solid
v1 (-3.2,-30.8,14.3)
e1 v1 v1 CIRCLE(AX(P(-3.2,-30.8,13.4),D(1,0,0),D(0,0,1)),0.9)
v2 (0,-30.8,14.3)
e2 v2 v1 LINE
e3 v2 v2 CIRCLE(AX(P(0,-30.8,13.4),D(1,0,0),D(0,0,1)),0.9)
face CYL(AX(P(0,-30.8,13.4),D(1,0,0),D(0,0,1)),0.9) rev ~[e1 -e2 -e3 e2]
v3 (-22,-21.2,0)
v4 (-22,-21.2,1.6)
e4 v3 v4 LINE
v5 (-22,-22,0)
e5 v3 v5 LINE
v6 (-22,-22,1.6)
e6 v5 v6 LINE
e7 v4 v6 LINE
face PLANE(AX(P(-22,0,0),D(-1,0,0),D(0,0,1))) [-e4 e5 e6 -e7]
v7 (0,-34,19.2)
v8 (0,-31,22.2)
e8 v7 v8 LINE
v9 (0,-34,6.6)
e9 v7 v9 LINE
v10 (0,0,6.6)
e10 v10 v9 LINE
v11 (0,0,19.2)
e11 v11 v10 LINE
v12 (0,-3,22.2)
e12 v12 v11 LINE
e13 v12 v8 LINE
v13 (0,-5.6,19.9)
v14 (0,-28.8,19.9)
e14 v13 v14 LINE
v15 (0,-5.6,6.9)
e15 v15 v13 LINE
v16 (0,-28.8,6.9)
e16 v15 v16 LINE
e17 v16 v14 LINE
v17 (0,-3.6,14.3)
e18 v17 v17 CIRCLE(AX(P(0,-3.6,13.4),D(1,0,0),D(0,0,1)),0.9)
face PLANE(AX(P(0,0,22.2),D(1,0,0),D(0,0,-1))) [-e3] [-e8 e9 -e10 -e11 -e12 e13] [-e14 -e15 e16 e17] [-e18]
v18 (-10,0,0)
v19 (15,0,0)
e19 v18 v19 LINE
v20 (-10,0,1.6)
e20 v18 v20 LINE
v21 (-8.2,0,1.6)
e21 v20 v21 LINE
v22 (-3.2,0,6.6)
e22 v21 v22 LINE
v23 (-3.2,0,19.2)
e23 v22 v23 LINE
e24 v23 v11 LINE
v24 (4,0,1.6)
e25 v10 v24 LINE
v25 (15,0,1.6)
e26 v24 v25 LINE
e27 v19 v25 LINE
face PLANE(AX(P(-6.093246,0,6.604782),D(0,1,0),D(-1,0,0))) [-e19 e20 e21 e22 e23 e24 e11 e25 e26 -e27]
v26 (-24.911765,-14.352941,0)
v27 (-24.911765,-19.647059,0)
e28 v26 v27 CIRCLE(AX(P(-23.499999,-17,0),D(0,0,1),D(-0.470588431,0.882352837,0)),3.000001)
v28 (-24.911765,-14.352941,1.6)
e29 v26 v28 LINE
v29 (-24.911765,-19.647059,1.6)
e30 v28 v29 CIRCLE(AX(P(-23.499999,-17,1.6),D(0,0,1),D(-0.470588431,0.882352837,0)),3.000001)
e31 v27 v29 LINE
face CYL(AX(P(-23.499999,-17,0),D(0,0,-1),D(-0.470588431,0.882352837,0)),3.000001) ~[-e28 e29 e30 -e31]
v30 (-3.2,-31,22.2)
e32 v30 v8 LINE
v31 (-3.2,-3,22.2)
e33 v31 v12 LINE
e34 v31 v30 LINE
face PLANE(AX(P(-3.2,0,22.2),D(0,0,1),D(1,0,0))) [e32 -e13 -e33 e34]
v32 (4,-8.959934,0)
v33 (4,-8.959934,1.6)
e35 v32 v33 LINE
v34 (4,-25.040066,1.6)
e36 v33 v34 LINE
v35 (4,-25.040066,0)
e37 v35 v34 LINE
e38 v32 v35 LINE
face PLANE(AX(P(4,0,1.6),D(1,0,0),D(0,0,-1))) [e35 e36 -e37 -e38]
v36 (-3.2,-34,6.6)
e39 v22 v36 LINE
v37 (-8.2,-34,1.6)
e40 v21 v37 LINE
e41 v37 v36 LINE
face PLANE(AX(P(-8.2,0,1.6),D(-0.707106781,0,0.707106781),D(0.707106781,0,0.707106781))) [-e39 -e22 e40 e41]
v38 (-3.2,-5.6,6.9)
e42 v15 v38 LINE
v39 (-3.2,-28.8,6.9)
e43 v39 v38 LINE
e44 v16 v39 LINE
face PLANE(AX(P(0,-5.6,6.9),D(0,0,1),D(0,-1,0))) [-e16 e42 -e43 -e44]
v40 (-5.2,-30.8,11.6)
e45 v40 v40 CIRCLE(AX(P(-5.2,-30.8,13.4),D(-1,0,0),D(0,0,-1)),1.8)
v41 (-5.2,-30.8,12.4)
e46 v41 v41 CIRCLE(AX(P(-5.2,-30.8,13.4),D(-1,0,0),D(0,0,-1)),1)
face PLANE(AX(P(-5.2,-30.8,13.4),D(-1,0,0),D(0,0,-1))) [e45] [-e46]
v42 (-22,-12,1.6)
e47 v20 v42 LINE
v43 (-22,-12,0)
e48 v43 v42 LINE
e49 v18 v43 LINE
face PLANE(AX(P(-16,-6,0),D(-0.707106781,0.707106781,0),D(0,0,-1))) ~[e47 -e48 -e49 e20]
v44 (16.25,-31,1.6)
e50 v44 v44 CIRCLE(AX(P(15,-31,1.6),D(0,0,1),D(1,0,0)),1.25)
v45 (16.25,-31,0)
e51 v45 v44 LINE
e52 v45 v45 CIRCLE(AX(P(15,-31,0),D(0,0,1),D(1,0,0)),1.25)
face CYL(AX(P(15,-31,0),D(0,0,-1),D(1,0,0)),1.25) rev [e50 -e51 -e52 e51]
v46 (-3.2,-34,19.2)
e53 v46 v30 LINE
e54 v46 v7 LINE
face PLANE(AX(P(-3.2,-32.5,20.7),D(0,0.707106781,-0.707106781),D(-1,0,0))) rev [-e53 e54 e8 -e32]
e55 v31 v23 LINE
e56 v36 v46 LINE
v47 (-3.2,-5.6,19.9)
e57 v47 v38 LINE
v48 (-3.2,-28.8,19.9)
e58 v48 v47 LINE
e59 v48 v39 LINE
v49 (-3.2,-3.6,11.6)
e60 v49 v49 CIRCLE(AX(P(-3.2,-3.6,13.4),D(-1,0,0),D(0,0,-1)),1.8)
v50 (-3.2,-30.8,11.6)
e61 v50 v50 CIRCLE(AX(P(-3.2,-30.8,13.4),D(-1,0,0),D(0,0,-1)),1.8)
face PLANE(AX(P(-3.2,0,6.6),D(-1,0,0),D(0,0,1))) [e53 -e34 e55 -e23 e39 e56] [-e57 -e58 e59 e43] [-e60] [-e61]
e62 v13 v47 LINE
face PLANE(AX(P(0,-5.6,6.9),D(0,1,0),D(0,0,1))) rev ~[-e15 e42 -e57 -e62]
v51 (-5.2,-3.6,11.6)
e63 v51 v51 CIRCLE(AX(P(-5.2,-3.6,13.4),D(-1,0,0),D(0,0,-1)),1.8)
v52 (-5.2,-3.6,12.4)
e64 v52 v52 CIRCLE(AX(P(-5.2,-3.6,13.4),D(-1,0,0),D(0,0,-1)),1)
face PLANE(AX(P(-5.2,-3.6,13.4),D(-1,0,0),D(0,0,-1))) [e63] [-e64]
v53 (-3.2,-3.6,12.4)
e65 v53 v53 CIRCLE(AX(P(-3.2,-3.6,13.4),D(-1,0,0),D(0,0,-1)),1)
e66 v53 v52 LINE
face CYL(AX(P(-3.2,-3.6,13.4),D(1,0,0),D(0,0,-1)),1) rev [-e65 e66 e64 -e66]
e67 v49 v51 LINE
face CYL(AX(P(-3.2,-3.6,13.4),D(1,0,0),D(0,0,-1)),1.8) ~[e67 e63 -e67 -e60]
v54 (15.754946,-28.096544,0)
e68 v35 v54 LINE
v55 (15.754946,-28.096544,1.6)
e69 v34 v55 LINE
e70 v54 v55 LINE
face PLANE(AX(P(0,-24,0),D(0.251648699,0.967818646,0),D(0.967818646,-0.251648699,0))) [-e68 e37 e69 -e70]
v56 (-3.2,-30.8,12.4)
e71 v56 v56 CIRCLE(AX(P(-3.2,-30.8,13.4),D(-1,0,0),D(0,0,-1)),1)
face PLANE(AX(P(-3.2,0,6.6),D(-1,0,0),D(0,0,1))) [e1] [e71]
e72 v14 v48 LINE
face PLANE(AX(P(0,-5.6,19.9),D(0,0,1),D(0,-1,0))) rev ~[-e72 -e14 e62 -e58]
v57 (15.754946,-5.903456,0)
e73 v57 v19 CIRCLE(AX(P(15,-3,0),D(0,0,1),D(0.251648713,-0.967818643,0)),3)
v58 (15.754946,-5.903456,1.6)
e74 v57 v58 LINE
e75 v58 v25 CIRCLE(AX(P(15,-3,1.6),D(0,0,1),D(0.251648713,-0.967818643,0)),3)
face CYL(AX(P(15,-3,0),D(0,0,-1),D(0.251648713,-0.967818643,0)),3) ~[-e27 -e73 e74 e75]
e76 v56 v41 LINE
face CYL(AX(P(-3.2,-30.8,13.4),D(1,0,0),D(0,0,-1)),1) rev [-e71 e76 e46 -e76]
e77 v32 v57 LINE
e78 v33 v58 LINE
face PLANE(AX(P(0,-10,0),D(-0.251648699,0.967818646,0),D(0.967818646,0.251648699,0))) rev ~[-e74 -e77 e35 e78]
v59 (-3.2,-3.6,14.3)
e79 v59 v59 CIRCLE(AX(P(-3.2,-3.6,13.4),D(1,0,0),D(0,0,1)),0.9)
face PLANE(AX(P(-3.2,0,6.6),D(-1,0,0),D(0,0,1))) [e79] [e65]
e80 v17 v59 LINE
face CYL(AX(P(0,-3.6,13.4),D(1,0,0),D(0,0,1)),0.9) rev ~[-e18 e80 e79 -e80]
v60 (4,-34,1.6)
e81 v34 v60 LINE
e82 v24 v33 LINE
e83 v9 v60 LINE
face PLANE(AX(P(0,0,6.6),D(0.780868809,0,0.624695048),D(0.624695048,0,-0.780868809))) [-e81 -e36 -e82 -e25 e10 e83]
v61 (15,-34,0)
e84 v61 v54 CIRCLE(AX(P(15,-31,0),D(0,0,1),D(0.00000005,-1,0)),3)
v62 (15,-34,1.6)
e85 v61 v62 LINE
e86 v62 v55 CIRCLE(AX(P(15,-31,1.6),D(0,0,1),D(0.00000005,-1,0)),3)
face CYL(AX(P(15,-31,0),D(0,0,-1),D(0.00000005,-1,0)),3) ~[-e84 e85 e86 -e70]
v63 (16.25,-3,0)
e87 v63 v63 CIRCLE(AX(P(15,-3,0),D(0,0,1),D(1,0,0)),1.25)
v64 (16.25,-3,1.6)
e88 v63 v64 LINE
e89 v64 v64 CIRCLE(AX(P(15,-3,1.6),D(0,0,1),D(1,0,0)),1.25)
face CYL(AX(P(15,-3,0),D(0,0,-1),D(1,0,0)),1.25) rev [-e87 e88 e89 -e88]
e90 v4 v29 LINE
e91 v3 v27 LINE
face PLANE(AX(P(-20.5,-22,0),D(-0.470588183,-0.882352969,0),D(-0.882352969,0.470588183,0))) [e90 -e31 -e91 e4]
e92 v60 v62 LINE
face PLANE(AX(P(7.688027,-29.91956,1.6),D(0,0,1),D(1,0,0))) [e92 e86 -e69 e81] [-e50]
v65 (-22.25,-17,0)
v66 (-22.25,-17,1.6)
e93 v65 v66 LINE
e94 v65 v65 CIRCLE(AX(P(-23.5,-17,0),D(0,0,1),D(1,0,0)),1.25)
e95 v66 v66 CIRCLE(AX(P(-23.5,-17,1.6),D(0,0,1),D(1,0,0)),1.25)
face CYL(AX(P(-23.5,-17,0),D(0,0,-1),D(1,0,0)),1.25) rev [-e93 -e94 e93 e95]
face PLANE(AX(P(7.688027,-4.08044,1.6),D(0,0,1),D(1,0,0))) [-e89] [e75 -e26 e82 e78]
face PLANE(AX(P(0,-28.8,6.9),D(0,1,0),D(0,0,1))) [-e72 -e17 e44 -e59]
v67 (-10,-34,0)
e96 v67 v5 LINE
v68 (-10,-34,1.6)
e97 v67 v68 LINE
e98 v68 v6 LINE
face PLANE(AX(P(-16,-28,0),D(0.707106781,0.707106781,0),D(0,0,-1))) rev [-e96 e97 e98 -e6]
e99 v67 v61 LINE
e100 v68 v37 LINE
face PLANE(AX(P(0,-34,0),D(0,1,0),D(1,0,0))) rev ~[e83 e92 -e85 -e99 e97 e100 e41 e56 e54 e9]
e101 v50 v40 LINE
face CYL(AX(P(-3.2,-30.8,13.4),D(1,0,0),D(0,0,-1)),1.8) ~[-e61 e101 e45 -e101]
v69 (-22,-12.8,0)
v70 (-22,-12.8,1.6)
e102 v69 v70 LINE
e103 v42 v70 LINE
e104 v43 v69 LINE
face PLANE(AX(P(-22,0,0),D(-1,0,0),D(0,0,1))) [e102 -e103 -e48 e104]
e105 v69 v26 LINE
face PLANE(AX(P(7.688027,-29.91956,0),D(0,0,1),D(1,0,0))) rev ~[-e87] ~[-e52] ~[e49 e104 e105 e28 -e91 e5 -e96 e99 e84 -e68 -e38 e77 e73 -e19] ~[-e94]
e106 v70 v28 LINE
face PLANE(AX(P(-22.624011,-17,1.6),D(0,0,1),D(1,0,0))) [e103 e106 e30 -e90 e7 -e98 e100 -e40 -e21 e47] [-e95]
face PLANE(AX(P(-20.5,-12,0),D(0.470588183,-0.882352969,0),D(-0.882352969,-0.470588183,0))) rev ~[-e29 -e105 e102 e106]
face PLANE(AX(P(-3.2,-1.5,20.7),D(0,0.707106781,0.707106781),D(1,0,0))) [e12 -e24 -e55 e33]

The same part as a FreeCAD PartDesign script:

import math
import FreeCAD as App
import Part
import Sketcher

V = App.Vector
Q = App.Units.Quantity


def edges_at(feature, points):
    """Names of the edges that pass closest to the given points."""
    edges = feature.Shape.Edges
    near = lambda p: min(range(len(edges)), key=lambda i: edges[i].distToShape(Part.Vertex(*p))[0])
    return sorted({f"Edge{near(p) + 1}" for p in points})


def add_polygon(sketch, points):
    """Adds a closed chain of lines whose ends are joined by coincident constraints."""
    first, n = sketch.GeometryCount, len(points)
    for a, b in zip(points, points[1:] + points[:1]):
        sketch.addGeometry(Part.LineSegment(App.Vector(*a, 0), App.Vector(*b, 0)), False)
    for i in range(n):
        sketch.addConstraint(Sketcher.Constraint("Coincident", first + i, 2, first + (i + 1) % n, 1))

doc = App.newDocument("Part")
body = doc.addObject("PartDesign::Body", "Body")

# Sketch on XZ plane
sketch1 = body.newObject("Sketcher::SketchObject", "Sketch")
sketch1.AttachmentSupport = (doc.getObject("XZ_Plane"), [""])
sketch1.MapMode = "FlatFace"
add_polygon(sketch1, [(-8.2, 1.6), (-22, 1.6), (-22, 0), (4, 0), (4, 1.6), (0, 6.6), (0, 22.2), (-3.2, 22.2), (-3.2, 6.6)])  # lines 0-8
sketch1.addConstraint([
    Sketcher.Constraint("Horizontal", 0),
    Sketcher.Constraint("Vertical", 1),
    Sketcher.Constraint("Horizontal", 2),
    Sketcher.Constraint("Vertical", 3),
    Sketcher.Constraint("Vertical", 5),
    Sketcher.Constraint("Horizontal", 6),
    Sketcher.Constraint("Vertical", 7),
    Sketcher.Constraint("PointOnObject", 1, 2, -1),
    Sketcher.Constraint("PointOnObject", 4, 2, -2),
    Sketcher.Constraint("Horizontal", 0, 2, 3, 2),
    Sketcher.Constraint("Horizontal", 4, 2, 7, 2),
    Sketcher.Constraint("DistanceX", 2, 1, 2, 2, 26.0),
    Sketcher.Constraint("Angle", 8, Q("-135 deg")),
    Sketcher.Constraint("DistanceX", 0, 2, 0, 1, 13.8),
    Sketcher.Constraint("DistanceX", 6, 2, 6, 1, 3.2),
    Sketcher.Constraint("DistanceY", 1, 2, 1, 1, 1.6),
    Sketcher.Constraint("DistanceY", 5, 1, 5, 2, 15.6),
    Sketcher.Constraint("DistanceX", 0, 2, -1, 1, 22.0),
])
pad1 = body.newObject("PartDesign::Pad", "Pad")
pad1.Profile = sketch1
pad1.Length = 34

# Sketch on YZ plane
sketch2 = body.newObject("Sketcher::SketchObject", "Sketch001")
sketch2.AttachmentSupport = (doc.getObject("YZ_Plane"), [""])
sketch2.MapMode = "FlatFace"
sketch2.addGeometry([
    Part.Circle(V(-30.8, 13.4, 0), V(0, 0, 1), 0.9),
    Part.Circle(V(-3.6, 13.4, 0), V(0, 0, 1), 0.9),
], False)
sketch2.addConstraint([
    Sketcher.Constraint("Equal", 0, 1),
    Sketcher.Constraint("Horizontal", 0, 3, 1, 3),
    Sketcher.Constraint("Diameter", 0, 1.8),
    Sketcher.Constraint("DistanceX", 0, 3, -1, 1, 30.8),
    Sketcher.Constraint("DistanceY", -1, 1, 0, 3, 13.4),
    Sketcher.Constraint("DistanceX", 1, 3, -1, 1, 3.6),
])
pocket1 = body.newObject("PartDesign::Pocket", "Pocket")
pocket1.Profile = sketch2
pocket1.Type = "ThroughAll"

# Sketch on YZ plane
sketch3 = body.newObject("Sketcher::SketchObject", "Sketch002")
sketch3.AttachmentSupport = (doc.getObject("YZ_Plane"), [""])
sketch3.MapMode = "FlatFace"
add_polygon(sketch3, [(-29, 7), (-6, 7), (-6, 20), (-29, 20)])  # lines 0-3
sketch3.addConstraint([
    Sketcher.Constraint("Horizontal", 0),
    Sketcher.Constraint("Vertical", 1),
    Sketcher.Constraint("Horizontal", 2),
    Sketcher.Constraint("Vertical", 3),
    Sketcher.Constraint("DistanceY", 1, 1, 1, 2, 13.0),
    Sketcher.Constraint("DistanceX", 0, 1, 0, 2, 23.2),
    Sketcher.Constraint("DistanceX", 0, 2, -1, 1, 5.6),
    Sketcher.Constraint("DistanceY", -1, 1, 0, 2, 6.9),
])
pocket2 = body.newObject("PartDesign::Pocket", "Pocket001")
pocket2.Profile = sketch3
pocket2.Type = "ThroughAll"

# Sketch on XY plane
sketch4 = body.newObject("Sketcher::SketchObject", "Sketch003")
sketch4.AttachmentSupport = (doc.getObject("XY_Plane"), [""])
sketch4.MapMode = "FlatFace"
sketch4.addGeometry([
    Part.ArcOfCircle(Part.Circle(V(-23.5, -17, 0), V(0, 0, 1), 3), math.radians(118), math.radians(242)),  # 0
    Part.LineSegment(V(-24.9, -19.6, 0), V(-20.5, -22, 0)),  # 1
    Part.LineSegment(V(-20.5, -22, 0), V(-20.5, -12, 0)),  # 2
    Part.LineSegment(V(-20.5, -12, 0), V(-24.9, -14.4, 0)),  # 3
    Part.Circle(V(-23.5, -17, 0), V(0, 0, 1), 1.2),  # 4
], False)
sketch4.addConstraint([
    Sketcher.Constraint("Tangent", 0, 2, 1, 1),
    Sketcher.Constraint("Coincident", 1, 2, 2, 1),
    Sketcher.Constraint("Coincident", 2, 2, 3, 1),
    Sketcher.Constraint("Tangent", 3, 2, 0, 1),
    Sketcher.Constraint("Vertical", 2),
    Sketcher.Constraint("Coincident", 4, 3, 0, 3),
    Sketcher.Constraint("Vertical", 0, 2, 3, 2),
    Sketcher.Constraint("Radius", 0, 3.000001),
    Sketcher.Constraint("Diameter", 4, 2.5),
    Sketcher.Constraint("DistanceY", 2, 1, 2, 2, 10.0),
    Sketcher.Constraint("Distance", 1, 5.0),
    Sketcher.Constraint("DistanceY", 0, 3, -1, 1, 17.0),
    Sketcher.Constraint("DistanceX", 0, 3, -1, 1, 23.499999),
])
pad2 = body.newObject("PartDesign::Pad", "Pad001")
pad2.Profile = sketch4
pad2.Length = 1.6

# Sketch on XY plane
sketch5 = body.newObject("Sketcher::SketchObject", "Sketch004")
sketch5.AttachmentSupport = (doc.getObject("XY_Plane"), [""])
sketch5.MapMode = "FlatFace"
sketch5.addGeometry([
    Part.ArcOfCircle(Part.Circle(V(15, -31, 0), V(0, 0, 1), 3), math.radians(-90), math.radians(75)),  # 0
    Part.LineSegment(V(15.8, -28.1, 0), V(0, -24, 0)),  # 1
    Part.LineSegment(V(0, -24, 0), V(0, -34, 0)),  # 2
    Part.LineSegment(V(0, -34, 0), V(15, -34, 0)),  # 3
    Part.Circle(V(15, -31, 0), V(0, 0, 1), 1.2),  # 4
    Part.ArcOfCircle(Part.Circle(V(15, -3, 0), V(0, 0, 1), 3), math.radians(-75), math.radians(90)),  # 5
    Part.LineSegment(V(15, 0, 0), V(0, 0, 0)),  # 6
    Part.LineSegment(V(0, 0, 0), V(0, -10, 0)),  # 7
    Part.LineSegment(V(0, -10, 0), V(15.8, -5.9, 0)),  # 8
    Part.Circle(V(15, -3, 0), V(0, 0, 1), 1.2),  # 9
], False)
sketch5.addConstraint([
    Sketcher.Constraint("Tangent", 0, 2, 1, 1),
    Sketcher.Constraint("Coincident", 1, 2, 2, 1),
    Sketcher.Constraint("Coincident", 2, 2, 3, 1),
    Sketcher.Constraint("Tangent", 3, 2, 0, 1),
    Sketcher.Constraint("Tangent", 5, 2, 6, 1),
    Sketcher.Constraint("Coincident", 6, 2, 7, 1),
    Sketcher.Constraint("Coincident", 7, 2, 8, 1),
    Sketcher.Constraint("Tangent", 8, 2, 5, 1),
    Sketcher.Constraint("Vertical", 2),
    Sketcher.Constraint("Horizontal", 3),
    Sketcher.Constraint("Horizontal", 6),
    Sketcher.Constraint("Vertical", 7),
    Sketcher.Constraint("Coincident", 6, 2, -1, 1),
    Sketcher.Constraint("Coincident", 4, 3, 0, 3),
    Sketcher.Constraint("Coincident", 9, 3, 5, 3),
    Sketcher.Constraint("Equal", 0, 5),
    Sketcher.Constraint("Equal", 4, 9),
    Sketcher.Constraint("PointOnObject", 1, 2, -2),
    Sketcher.Constraint("Vertical", 4, 3, 5, 3),
    Sketcher.Constraint("Vertical", 0, 2, 8, 2),
    Sketcher.Constraint("Radius", 0, 3.0),
    Sketcher.Constraint("Diameter", 4, 2.5),
    Sketcher.Constraint("DistanceX", 3, 1, 3, 2, 15.0),
    Sketcher.Constraint("DistanceY", 2, 2, 2, 1, 10.0),
    Sketcher.Constraint("DistanceY", 0, 3, -1, 1, 31.0),
])
pad3 = body.newObject("PartDesign::Pad", "Pad002")
pad3.Profile = sketch5
pad3.Length = 1.6

# Sketch on YZ plane
sketch6 = body.newObject("Sketcher::SketchObject", "Sketch005")
sketch6.AttachmentSupport = (doc.getObject("YZ_Plane"), [""])
sketch6.MapMode = "FlatFace"
sketch6.AttachmentOffset = App.Placement(V(0, 0, -3.2), App.Rotation())
sketch6.addGeometry([
    Part.Circle(V(-30.8, 13.4, 0), V(0, 0, 1), 1.8),
    Part.Circle(V(-30.8, 13.4, 0), V(0, 0, 1), 1),
    Part.Circle(V(-3.6, 13.4, 0), V(0, 0, 1), 1.8),
    Part.Circle(V(-3.6, 13.4, 0), V(0, 0, 1), 1),
], False)
sketch6.addConstraint([
    Sketcher.Constraint("Coincident", 1, 3, 0, 3),
    Sketcher.Constraint("Coincident", 3, 3, 2, 3),
    Sketcher.Constraint("Equal", 0, 2),
    Sketcher.Constraint("Equal", 1, 3),
    Sketcher.Constraint("Horizontal", 1, 3, 2, 3),
    Sketcher.Constraint("Diameter", 1, 2.0),
    Sketcher.Constraint("Diameter", 0, 3.6),
    Sketcher.Constraint("DistanceX", 0, 3, -1, 1, 30.8),
    Sketcher.Constraint("DistanceY", -1, 1, 0, 3, 13.4),
    Sketcher.Constraint("DistanceX", 2, 3, -1, 1, 3.6),
])
pad4 = body.newObject("PartDesign::Pad", "Pad003")
pad4.Profile = sketch6
pad4.Length = 2
pad4.Reversed = True
doc.recompute()

chamfer = body.newObject("PartDesign::Chamfer", "Chamfer")
chamfer.Base = (pad4, edges_at(pad4, [(-1.6, -34, 22.2), (-1.6, 0, 22.2)]))
chamfer.Size = 3
doc.recompute()

chamfer2 = body.newObject("PartDesign::Chamfer", "Chamfer001")
chamfer2.Base = (chamfer, edges_at(chamfer, [(-22, -34, 0.8), (-22, 0, 0.8)]))
chamfer2.Size = 12

doc.recompute()
